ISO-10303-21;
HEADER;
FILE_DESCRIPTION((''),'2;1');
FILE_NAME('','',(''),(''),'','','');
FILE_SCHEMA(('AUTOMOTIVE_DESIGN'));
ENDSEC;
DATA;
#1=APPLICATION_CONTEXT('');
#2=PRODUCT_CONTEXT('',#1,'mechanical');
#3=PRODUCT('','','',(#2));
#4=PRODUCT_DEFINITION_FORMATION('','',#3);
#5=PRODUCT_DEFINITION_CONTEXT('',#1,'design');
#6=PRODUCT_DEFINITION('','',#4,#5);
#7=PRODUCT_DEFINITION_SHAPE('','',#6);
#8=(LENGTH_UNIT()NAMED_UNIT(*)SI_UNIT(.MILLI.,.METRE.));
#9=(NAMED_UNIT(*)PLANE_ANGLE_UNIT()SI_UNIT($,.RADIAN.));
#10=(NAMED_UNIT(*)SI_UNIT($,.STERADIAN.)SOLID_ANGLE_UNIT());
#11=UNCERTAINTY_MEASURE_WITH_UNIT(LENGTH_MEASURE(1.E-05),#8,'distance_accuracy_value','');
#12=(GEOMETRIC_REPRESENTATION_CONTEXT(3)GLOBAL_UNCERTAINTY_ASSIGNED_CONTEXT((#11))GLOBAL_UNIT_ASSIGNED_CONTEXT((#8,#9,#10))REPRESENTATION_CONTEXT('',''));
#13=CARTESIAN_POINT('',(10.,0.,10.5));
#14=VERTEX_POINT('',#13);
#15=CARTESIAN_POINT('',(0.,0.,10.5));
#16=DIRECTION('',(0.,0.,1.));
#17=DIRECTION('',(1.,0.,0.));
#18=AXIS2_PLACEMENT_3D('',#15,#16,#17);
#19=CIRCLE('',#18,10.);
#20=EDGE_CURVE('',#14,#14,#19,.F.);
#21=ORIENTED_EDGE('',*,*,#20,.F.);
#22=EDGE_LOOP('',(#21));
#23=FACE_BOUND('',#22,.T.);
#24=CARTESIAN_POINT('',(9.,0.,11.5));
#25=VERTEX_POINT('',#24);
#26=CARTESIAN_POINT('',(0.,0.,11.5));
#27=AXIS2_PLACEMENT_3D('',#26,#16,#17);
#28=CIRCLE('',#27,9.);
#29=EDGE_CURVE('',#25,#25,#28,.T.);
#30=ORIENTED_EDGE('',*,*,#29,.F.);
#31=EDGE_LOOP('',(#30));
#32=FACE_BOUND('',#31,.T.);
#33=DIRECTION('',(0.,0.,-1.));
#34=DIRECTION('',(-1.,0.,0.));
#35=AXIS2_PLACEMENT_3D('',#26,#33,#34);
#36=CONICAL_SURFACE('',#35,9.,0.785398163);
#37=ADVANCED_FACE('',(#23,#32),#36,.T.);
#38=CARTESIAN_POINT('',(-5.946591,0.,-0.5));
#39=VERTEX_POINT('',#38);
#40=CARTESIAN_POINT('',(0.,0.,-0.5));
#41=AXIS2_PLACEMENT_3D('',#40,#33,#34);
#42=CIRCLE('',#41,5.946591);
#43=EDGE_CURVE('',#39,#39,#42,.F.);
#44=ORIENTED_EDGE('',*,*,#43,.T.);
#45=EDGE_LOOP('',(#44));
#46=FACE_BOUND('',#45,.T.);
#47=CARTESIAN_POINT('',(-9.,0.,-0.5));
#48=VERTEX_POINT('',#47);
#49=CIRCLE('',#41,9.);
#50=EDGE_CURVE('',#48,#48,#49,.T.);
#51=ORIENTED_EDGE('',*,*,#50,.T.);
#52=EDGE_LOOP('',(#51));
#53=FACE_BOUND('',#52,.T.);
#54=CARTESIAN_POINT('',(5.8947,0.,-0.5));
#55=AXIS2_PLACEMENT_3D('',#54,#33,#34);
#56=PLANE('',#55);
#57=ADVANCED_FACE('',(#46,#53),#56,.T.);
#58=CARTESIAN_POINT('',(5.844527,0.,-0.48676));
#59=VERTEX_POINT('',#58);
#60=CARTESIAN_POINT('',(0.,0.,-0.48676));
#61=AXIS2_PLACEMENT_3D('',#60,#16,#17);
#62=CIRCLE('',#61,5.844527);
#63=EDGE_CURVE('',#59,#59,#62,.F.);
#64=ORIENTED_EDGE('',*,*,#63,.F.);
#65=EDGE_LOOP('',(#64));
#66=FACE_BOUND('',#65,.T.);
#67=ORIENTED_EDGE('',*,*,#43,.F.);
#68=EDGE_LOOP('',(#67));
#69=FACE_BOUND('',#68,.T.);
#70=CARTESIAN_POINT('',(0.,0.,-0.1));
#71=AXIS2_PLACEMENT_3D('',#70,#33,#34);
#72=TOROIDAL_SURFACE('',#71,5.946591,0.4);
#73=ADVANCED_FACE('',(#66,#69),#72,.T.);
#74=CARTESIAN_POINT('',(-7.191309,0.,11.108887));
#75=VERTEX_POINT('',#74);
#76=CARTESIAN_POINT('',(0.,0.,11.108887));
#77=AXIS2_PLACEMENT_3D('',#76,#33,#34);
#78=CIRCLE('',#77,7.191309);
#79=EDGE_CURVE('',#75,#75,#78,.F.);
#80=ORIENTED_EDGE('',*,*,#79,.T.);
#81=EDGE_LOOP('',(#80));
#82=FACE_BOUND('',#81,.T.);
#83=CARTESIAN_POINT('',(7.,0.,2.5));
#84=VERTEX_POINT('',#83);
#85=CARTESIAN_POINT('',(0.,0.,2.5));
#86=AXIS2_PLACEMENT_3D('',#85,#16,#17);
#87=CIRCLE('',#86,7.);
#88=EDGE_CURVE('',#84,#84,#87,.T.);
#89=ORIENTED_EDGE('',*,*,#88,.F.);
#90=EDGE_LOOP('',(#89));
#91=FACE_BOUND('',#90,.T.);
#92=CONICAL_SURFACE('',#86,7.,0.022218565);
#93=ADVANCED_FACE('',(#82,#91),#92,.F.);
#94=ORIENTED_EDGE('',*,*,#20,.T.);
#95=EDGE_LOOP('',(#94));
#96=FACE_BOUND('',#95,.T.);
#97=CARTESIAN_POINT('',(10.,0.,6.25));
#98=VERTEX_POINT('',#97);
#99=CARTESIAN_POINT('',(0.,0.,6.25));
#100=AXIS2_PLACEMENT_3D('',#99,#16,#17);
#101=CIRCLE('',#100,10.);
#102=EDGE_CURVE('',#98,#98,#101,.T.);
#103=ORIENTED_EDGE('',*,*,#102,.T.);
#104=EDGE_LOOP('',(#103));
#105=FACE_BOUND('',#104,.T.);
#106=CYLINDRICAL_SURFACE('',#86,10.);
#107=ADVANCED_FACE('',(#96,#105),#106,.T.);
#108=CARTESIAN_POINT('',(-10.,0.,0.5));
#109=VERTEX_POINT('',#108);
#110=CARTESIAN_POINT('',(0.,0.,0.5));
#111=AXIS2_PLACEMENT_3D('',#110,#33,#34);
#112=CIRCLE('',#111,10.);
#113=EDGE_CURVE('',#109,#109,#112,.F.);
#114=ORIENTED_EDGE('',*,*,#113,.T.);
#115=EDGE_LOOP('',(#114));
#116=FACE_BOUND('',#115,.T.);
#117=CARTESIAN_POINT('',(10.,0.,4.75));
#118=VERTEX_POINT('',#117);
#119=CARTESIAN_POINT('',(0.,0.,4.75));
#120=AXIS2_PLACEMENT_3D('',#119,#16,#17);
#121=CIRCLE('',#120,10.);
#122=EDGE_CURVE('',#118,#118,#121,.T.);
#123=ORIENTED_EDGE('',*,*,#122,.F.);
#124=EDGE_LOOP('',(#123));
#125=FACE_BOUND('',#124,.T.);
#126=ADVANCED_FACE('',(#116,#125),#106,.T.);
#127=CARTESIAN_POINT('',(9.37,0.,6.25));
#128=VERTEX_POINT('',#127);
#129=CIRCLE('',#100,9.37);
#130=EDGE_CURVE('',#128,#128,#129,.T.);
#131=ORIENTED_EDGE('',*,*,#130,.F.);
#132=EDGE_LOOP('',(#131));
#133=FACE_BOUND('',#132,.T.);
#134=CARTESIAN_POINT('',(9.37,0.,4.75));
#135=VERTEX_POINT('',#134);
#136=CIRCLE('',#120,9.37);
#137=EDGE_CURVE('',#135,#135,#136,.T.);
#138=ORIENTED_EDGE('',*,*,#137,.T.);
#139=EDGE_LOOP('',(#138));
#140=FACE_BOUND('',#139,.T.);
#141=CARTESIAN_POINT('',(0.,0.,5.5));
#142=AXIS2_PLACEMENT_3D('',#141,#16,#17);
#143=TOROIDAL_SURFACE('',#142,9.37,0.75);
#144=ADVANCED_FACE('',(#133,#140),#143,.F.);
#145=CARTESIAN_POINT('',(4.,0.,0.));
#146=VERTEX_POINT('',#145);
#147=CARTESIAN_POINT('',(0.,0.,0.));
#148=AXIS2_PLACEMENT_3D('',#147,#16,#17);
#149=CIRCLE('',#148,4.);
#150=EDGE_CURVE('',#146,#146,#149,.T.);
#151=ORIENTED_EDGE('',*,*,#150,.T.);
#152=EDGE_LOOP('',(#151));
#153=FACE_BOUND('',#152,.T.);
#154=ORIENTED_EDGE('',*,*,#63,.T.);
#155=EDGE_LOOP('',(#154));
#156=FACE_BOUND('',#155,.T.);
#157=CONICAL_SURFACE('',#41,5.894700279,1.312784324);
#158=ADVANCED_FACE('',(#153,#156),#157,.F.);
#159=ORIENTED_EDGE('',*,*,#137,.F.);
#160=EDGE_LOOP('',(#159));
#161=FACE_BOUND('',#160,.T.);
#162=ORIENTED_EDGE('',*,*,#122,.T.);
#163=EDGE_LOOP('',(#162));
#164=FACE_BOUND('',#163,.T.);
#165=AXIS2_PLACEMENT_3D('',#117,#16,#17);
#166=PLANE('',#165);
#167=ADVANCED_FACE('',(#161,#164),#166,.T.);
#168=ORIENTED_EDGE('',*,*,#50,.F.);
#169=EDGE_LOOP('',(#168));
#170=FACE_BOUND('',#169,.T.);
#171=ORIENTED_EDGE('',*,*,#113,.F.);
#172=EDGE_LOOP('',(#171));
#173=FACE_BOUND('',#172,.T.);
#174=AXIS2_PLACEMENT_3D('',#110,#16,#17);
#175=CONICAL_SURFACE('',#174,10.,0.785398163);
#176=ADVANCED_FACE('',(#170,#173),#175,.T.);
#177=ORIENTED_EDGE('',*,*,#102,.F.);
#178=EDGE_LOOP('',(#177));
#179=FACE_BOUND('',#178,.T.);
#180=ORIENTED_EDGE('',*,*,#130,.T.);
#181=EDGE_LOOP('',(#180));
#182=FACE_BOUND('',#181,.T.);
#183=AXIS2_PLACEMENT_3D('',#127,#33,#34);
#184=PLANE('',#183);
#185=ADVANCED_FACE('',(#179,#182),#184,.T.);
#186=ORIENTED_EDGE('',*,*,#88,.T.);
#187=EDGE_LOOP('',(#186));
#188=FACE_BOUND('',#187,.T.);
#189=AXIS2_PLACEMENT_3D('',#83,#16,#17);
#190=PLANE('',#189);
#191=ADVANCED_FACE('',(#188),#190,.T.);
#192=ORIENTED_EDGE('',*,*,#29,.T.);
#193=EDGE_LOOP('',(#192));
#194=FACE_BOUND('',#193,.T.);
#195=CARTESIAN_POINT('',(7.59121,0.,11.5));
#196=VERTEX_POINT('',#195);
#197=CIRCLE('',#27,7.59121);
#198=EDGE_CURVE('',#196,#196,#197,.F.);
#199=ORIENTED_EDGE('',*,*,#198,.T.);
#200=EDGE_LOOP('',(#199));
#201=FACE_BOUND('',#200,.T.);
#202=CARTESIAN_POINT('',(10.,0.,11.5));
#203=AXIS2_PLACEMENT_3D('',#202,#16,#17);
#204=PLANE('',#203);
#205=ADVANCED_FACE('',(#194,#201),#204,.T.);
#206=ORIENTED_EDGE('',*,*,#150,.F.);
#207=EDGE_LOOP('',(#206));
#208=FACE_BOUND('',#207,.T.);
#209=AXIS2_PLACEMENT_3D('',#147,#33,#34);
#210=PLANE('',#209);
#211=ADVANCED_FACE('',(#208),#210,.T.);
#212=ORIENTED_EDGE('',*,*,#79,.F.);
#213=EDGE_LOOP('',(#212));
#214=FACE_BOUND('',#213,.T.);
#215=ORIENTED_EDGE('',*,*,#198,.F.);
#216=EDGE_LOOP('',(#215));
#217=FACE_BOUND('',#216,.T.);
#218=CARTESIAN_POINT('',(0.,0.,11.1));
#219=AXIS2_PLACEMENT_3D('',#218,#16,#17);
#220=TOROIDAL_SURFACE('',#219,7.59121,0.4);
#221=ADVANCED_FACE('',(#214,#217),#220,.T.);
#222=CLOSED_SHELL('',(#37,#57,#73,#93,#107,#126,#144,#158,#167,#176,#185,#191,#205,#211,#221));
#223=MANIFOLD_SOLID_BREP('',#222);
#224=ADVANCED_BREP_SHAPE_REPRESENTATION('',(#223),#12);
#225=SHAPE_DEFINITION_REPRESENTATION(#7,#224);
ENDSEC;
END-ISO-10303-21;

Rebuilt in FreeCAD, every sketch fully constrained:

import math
import FreeCAD as App
import Part
import Sketcher

V = App.Vector


def edges_at(feature, points):
    """Names of the edges that pass closest to the given points."""
    edges = feature.Shape.Edges
    near = lambda p: min(range(len(edges)), key=lambda i: edges[i].distToShape(Part.Vertex(*p))[0])
    return sorted({f"Edge{near(p) + 1}" for p in points})

doc = App.newDocument("Part")
body = doc.addObject("PartDesign::Body", "Body")

# Sketch on XZ plane
sketch1 = body.newObject("Sketcher::SketchObject", "Sketch")
sketch1.AttachmentSupport = (doc.getObject("XZ_Plane"), [""])
sketch1.MapMode = "FlatFace"
sketch1.addGeometry([
    Part.LineSegment(V(4, 0, 0), V(0, 0, 0)),  # 0
    Part.LineSegment(V(0, 0, 0), V(0, 2.5, 0)),  # 1
    Part.LineSegment(V(0, 2.5, 0), V(7, 2.5, 0)),  # 2
    Part.LineSegment(V(7, 2.5, 0), V(7.2, 11.5, 0)),  # 3
    Part.LineSegment(V(7.2, 11.5, 0), V(10, 11.5, 0)),  # 4
    Part.LineSegment(V(10, 11.5, 0), V(10, 6.2, 0)),  # 5
    Part.LineSegment(V(10, 6.2, 0), V(9.4, 6.2, 0)),  # 6
    Part.ArcOfCircle(Part.Circle(V(9.4, 5.5, 0), V(0, 0, 1), 0.8), math.radians(90), math.radians(270)),  # 7
    Part.LineSegment(V(9.4, 4.8, 0), V(10, 4.8, 0)),  # 8
    Part.LineSegment(V(10, 4.8, 0), V(10, -0.5, 0)),  # 9
    Part.LineSegment(V(10, -0.5, 0), V(5.9, -0.5, 0)),  # 10
    Part.LineSegment(V(5.9, -0.5, 0), V(4, 0, 0)),  # 11
], False)
sketch1.addConstraint([
    Sketcher.Constraint("Coincident", 0, 2, 1, 1),
    Sketcher.Constraint("Coincident", 1, 2, 2, 1),
    Sketcher.Constraint("Coincident", 2, 2, 3, 1),
    Sketcher.Constraint("Coincident", 3, 2, 4, 1),
    Sketcher.Constraint("Coincident", 4, 2, 5, 1),
    Sketcher.Constraint("Coincident", 5, 2, 6, 1),
    Sketcher.Constraint("Tangent", 6, 2, 7, 1),
    Sketcher.Constraint("Tangent", 7, 2, 8, 1),
    Sketcher.Constraint("Coincident", 8, 2, 9, 1),
    Sketcher.Constraint("Coincident", 9, 2, 10, 1),
    Sketcher.Constraint("Coincident", 10, 2, 11, 1),
    Sketcher.Constraint("Coincident", 11, 2, 0, 1),
    Sketcher.Constraint("Horizontal", 0),
    Sketcher.Constraint("Vertical", 1),
    Sketcher.Constraint("Horizontal", 2),
    Sketcher.Constraint("Horizontal", 4),
    Sketcher.Constraint("Vertical", 5),
    Sketcher.Constraint("Horizontal", 6),
    Sketcher.Constraint("Horizontal", 8),
    Sketcher.Constraint("Vertical", 9),
    Sketcher.Constraint("Horizontal", 10),
    Sketcher.Constraint("Coincident", 0, 2, -1, 1),
    Sketcher.Constraint("Vertical", 5, 2, 8, 2),
    Sketcher.Constraint("Equal", 5, 9),
    Sketcher.Constraint("DistanceX", 0, 2, 0, 1, 4.0),
    Sketcher.Constraint("DistanceX", 2, 1, 2, 2, 7.0),
    Sketcher.Constraint("Radius", 7, 0.75),
    Sketcher.Constraint("DistanceX", 4, 1, 4, 2, 2.8),
    Sketcher.Constraint("DistanceY", 1, 1, 1, 2, 2.5),
    Sketcher.Constraint("DistanceX", -1, 1, 4, 2, 10.0),
    Sketcher.Constraint("DistanceY", 1, 2, 7, 3, 3.0),
    Sketcher.Constraint("DistanceY", 7, 3, 3, 2, 6.0),
    Sketcher.Constraint("DistanceX", 6, 2, 6, 1, 0.63),
    Sketcher.Constraint("DistanceX", 10, 2, 10, 1, 4.1053),
])
revolution = body.newObject("PartDesign::Revolution", "Revolution")
revolution.Profile = sketch1
revolution.ReferenceAxis = (sketch1, ["V_Axis"])
revolution.Angle = 360
doc.recompute()

chamfer = body.newObject("PartDesign::Chamfer", "Chamfer")
chamfer.Base = (revolution, edges_at(revolution, [(-10, 0, 11.5), (-10, 0, -0.5)]))
chamfer.Size = 1
doc.recompute()

fillet = body.newObject("PartDesign::Fillet", "Fillet")
fillet.Base = (chamfer, edges_at(chamfer, [(-7.2, 0, 11.5), (-5.895, 0, -0.5)]))
fillet.Radius = 0.4

doc.recompute()
